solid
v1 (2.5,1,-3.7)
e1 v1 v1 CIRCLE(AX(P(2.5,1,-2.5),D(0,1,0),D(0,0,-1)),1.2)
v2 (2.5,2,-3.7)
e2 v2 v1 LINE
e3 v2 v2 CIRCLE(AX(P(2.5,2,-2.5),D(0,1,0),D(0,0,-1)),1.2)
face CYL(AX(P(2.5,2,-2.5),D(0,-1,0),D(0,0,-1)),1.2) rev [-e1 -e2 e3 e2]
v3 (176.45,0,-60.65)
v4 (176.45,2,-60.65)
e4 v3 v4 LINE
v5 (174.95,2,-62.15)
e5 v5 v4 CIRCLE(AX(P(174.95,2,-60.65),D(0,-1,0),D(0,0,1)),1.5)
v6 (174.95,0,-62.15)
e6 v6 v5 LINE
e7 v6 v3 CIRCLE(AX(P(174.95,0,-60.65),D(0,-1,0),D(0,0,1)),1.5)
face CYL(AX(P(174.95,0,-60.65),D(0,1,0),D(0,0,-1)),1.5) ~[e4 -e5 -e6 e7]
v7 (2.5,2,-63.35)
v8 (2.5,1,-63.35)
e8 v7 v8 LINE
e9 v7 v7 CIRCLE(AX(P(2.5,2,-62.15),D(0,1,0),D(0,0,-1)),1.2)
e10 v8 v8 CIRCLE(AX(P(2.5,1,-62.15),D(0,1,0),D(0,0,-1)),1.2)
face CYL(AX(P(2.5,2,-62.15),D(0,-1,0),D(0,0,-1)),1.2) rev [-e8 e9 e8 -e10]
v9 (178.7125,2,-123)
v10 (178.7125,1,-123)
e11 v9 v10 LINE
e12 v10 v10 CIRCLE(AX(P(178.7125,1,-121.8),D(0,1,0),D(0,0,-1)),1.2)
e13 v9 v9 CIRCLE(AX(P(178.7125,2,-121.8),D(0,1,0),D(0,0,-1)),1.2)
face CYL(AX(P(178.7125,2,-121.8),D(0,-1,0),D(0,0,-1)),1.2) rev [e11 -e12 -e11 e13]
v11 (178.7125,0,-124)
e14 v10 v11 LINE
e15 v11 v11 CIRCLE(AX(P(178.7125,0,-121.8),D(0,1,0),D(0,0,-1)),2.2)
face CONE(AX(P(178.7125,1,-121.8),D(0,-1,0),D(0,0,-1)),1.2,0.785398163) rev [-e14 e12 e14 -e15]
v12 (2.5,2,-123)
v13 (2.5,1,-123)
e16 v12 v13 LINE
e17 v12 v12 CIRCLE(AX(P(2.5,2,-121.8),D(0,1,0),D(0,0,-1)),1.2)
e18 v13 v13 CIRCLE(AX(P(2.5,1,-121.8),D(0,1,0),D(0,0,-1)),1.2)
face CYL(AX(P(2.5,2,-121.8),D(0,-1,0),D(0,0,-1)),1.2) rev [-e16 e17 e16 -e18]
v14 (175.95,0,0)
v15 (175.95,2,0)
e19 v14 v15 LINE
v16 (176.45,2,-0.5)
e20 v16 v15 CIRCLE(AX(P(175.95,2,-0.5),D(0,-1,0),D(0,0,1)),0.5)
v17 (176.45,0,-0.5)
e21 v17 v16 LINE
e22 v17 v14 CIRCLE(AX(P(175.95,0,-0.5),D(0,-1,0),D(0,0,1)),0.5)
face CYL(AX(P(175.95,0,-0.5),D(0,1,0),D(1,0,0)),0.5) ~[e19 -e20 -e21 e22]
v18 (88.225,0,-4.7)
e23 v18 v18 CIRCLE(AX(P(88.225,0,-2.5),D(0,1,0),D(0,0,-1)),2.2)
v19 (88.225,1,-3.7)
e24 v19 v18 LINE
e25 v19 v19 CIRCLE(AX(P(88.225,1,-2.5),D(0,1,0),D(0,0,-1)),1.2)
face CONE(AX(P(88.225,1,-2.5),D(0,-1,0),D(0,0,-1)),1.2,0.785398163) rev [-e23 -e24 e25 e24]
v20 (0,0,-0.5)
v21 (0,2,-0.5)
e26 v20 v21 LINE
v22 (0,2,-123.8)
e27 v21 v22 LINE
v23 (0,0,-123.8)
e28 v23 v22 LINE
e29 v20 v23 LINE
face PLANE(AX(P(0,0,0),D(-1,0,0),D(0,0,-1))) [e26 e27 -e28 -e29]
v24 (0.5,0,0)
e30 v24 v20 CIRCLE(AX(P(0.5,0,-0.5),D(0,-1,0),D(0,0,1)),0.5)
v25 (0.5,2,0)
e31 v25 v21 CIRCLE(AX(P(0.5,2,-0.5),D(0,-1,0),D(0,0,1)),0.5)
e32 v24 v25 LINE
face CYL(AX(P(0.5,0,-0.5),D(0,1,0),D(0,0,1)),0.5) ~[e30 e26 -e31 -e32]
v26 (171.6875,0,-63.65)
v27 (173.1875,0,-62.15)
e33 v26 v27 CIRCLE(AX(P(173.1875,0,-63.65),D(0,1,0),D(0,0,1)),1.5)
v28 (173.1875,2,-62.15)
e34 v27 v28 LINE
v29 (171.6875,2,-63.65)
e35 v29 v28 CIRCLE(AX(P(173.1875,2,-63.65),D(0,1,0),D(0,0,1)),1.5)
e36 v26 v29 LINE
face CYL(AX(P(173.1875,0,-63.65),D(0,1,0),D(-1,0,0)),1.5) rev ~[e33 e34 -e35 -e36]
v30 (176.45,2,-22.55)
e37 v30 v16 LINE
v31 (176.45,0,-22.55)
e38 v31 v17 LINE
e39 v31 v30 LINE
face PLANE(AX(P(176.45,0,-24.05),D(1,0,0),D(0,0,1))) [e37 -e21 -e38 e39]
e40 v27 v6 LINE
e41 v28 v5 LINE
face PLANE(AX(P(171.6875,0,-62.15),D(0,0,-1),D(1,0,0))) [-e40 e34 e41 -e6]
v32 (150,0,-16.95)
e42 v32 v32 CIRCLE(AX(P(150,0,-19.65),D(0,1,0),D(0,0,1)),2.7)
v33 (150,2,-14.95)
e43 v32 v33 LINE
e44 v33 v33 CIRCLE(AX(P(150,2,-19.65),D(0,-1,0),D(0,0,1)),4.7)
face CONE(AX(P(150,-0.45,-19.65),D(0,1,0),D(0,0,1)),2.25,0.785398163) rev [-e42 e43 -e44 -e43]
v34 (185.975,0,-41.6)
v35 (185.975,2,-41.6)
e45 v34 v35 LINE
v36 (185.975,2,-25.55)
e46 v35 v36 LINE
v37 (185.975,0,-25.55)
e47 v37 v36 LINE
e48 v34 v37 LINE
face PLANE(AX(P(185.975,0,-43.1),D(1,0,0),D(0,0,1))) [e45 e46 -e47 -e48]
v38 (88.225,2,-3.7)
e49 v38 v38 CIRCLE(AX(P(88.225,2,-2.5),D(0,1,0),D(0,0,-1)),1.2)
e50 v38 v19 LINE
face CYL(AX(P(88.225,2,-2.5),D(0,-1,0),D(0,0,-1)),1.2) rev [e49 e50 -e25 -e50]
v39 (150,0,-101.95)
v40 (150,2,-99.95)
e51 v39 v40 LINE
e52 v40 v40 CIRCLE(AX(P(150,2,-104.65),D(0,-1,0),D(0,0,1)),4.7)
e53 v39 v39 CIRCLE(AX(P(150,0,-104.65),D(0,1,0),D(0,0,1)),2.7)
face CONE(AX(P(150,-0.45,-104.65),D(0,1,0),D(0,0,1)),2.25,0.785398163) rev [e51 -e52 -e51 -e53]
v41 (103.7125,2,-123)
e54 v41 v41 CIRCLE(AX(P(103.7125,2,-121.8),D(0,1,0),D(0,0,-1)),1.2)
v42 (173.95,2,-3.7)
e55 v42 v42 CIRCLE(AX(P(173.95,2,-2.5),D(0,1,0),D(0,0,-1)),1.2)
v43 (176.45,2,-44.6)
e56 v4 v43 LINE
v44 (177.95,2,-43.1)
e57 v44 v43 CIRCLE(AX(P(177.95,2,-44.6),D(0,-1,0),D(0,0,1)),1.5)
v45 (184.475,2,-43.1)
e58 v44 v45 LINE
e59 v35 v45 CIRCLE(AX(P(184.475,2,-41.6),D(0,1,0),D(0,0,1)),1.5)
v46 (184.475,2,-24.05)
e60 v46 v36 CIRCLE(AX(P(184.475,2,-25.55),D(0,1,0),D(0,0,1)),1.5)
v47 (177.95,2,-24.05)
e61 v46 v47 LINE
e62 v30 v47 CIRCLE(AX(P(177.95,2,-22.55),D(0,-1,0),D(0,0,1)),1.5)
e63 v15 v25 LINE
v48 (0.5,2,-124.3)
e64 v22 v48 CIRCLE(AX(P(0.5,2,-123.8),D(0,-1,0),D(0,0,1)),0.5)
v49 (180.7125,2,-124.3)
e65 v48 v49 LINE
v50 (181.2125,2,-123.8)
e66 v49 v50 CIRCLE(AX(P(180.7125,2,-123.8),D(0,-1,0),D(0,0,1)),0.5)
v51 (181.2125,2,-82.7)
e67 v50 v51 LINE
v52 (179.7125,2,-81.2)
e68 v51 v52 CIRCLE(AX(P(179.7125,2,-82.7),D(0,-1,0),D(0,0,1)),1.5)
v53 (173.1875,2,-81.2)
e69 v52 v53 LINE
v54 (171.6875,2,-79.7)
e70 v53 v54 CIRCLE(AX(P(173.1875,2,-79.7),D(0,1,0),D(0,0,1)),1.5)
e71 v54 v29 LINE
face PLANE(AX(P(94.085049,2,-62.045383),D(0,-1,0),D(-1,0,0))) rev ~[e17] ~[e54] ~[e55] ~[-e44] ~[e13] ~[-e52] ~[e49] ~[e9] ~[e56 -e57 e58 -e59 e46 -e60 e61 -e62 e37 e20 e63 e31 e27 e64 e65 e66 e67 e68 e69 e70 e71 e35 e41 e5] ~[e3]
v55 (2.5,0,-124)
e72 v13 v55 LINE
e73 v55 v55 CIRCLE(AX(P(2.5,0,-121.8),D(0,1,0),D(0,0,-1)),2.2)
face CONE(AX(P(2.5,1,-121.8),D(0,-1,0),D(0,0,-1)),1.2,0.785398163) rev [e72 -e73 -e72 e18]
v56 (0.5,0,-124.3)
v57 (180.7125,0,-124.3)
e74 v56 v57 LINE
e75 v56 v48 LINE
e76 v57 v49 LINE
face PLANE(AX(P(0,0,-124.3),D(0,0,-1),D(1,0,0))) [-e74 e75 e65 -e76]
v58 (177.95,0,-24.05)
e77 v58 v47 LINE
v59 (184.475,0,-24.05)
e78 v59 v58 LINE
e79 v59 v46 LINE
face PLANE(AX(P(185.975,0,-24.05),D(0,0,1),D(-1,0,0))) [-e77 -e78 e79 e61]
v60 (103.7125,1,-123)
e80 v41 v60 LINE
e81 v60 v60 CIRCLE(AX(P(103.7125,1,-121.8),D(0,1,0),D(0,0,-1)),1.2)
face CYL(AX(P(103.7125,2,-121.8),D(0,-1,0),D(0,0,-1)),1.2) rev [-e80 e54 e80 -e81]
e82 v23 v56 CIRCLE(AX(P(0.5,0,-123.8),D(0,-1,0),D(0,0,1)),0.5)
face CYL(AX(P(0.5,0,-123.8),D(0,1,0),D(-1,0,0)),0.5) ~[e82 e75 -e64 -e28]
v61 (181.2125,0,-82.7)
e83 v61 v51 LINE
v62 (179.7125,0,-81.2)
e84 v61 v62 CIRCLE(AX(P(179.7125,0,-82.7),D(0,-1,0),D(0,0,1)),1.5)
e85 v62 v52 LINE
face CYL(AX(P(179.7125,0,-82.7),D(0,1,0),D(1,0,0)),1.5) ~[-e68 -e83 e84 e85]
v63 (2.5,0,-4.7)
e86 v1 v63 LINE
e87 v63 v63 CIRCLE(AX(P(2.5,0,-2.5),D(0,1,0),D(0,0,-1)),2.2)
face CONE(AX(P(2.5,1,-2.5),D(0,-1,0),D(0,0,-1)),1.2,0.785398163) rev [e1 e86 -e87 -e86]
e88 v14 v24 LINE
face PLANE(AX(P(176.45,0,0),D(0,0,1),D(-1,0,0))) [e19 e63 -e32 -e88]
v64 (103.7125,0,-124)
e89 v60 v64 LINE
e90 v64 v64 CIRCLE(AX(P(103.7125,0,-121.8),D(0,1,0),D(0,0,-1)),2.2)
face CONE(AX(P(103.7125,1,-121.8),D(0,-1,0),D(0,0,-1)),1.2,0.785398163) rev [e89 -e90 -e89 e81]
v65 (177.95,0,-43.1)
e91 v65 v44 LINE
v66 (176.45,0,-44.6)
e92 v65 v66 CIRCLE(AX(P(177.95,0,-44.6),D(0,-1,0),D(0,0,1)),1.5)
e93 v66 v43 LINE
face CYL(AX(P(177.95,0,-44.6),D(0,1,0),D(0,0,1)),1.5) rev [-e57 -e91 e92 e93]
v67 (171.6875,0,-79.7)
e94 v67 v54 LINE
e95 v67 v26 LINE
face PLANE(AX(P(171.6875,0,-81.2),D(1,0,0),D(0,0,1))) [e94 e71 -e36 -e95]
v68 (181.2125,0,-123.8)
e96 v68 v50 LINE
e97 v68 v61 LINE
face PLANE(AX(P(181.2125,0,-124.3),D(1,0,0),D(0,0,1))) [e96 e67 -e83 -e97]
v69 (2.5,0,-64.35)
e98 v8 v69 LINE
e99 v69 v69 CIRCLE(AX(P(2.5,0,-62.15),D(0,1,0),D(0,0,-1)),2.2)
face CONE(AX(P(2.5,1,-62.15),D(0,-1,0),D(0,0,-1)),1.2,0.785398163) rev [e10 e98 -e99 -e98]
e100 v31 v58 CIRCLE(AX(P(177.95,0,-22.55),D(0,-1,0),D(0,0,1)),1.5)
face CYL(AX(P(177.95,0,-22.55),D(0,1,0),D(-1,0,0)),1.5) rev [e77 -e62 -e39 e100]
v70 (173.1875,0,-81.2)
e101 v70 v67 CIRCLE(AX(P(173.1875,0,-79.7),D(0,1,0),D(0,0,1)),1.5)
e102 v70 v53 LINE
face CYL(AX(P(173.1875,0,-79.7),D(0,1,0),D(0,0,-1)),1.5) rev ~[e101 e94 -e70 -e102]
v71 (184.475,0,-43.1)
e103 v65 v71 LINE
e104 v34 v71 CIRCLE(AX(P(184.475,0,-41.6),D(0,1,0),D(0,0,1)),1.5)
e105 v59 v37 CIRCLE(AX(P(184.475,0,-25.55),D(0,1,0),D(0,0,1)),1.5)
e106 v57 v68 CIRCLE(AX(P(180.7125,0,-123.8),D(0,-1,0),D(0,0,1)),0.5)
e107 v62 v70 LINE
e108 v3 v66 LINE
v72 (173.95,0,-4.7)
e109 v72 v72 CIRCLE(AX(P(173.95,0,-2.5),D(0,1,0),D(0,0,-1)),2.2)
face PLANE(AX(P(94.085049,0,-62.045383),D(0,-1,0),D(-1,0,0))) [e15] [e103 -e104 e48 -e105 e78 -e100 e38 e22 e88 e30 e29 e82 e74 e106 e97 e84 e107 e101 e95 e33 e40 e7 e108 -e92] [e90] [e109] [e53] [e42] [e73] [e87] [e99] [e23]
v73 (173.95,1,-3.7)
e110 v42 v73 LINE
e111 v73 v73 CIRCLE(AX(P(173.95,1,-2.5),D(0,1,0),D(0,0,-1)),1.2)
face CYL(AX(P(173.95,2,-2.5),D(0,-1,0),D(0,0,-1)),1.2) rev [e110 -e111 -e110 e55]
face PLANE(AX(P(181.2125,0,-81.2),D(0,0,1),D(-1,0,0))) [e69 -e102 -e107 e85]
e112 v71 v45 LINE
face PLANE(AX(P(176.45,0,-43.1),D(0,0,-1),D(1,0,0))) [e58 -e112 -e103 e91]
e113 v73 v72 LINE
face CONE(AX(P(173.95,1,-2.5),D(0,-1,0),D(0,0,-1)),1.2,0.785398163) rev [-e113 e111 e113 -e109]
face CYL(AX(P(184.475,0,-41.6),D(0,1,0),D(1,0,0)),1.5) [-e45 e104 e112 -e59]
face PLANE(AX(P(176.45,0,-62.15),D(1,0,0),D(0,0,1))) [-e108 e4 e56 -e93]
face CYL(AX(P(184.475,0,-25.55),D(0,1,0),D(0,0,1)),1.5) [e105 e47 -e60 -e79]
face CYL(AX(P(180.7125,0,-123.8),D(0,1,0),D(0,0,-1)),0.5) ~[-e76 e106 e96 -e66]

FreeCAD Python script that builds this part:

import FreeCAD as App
import Part
import Sketcher

V = App.Vector
Q = App.Units.Quantity


def edges_at(feature, points):
    """Names of the edges that pass closest to the given points."""
    edges = feature.Shape.Edges
    near = lambda p: min(range(len(edges)), key=lambda i: edges[i].distToShape(Part.Vertex(*p))[0])
    return sorted({f"Edge{near(p) + 1}" for p in points})


def add_polygon(sketch, points):
    """Adds a closed chain of lines whose ends are joined by coincident constraints."""
    first, n = sketch.GeometryCount, len(points)
    for a, b in zip(points, points[1:] + points[:1]):
        sketch.addGeometry(Part.LineSegment(App.Vector(*a, 0), App.Vector(*b, 0)), False)
    for i in range(n):
        sketch.addConstraint(Sketcher.Constraint("Coincident", first + i, 2, first + (i + 1) % n, 1))

doc = App.newDocument("Part")
params = doc.addObject("Spreadsheet::Sheet", "Params")
for row, (alias, value) in enumerate([
    ("sketch1_height", "124.3 mm"),
    ("sketch1_height2", "43.1 mm"),
    ("sketch1_width", "176.45 mm"),
    ("sketch1_height3", "24.05 mm"),
    ("pad1_length", "2 mm"),
    ("sketch2_width", "2 mm"),
    ("sketch2_width2", "1 mm"),
    ("sketch2_height", "2.2 mm"),
    ("groove_angle", "360 deg"),
    ("linearpattern_pitch", "75 mm"),
    ("linearpattern2_pitch", "176.2125 mm"),
    ("linearpattern3_pitch", "186.034856 mm"),
    ("linearpattern4_pitch", "212.798814 mm"),
    ("linearpattern5_pitch", "149.734691 mm"),
    ("linearpattern6_pitch", "119.395023 mm"),
    ("sketch3_width", "2 mm"),
    ("sketch3_height", "4.7 mm"),
    ("sketch3_width2", "0.45 mm"),
    ("groove2_angle", "360 deg"),
    ("linearpattern7_pitch", "85 mm"),
    ("fillet_radius", "1.5 mm"),
    ("fillet2_radius", "0.5 mm"),
], start=1):
    params.set(f"A{row}", alias)
    params.set(f"B{row}", "=" + value)
    params.setAlias(f"B{row}", alias)

body = doc.addObject("PartDesign::Body", "Body")

# Sketch on XZ plane
sketch1 = doc.addObject("Sketcher::SketchObject", "Sketch")
body.addObject(sketch1)
sketch1.AttachmentSupport = (doc.XZ_Plane, [""])
sketch1.MapMode = "FlatFace"
add_polygon(sketch1, [(0, -124.3), (0, 0), (176.45, 0), (176.45, -24.05), (185.975, -24.05), (185.975, -43.1), (176.45, -43.1), (176.45, -62.15), (171.6875, -62.15), (171.6875, -81.2), (181.2125, -81.2), (181.2125, -124.3)])  # lines 0-11
sketch1.addConstraint([
    Sketcher.Constraint("Vertical", 0),
    Sketcher.Constraint("Horizontal", 1),
    Sketcher.Constraint("Vertical", 2),
    Sketcher.Constraint("Horizontal", 3),
    Sketcher.Constraint("Vertical", 4),
    Sketcher.Constraint("Horizontal", 5),
    Sketcher.Constraint("Vertical", 6),
    Sketcher.Constraint("Horizontal", 7),
    Sketcher.Constraint("Vertical", 8),
    Sketcher.Constraint("Horizontal", 9),
    Sketcher.Constraint("Vertical", 10),
    Sketcher.Constraint("Horizontal", 11),
    Sketcher.Constraint("Coincident", 0, 2, -1, 1),
    Sketcher.Constraint("Vertical", 2, 2, 5, 2),
    Sketcher.Constraint("Equal", 5, 9),
    Sketcher.Constraint("Equal", 4, 6),
    Sketcher.Constraint("Equal", 6, 8),
    Sketcher.Constraint("DistanceY", 0, 1, 0, 2, Q("124.3 mm")),
    Sketcher.Constraint("DistanceY", 10, 2, 10, 1, Q("43.1 mm")),
    Sketcher.Constraint("DistanceX", 1, 1, 1, 2, Q("176.45 mm")),
    Sketcher.Constraint("DistanceY", 2, 2, 2, 1, Q("24.05 mm")),
    Sketcher.Constraint("DistanceX", 3, 1, 3, 2, Q("9.525 mm")),
    Sketcher.Constraint("DistanceX", 7, 2, 7, 1, Q("4.7625 mm")),
])
sketch1.setExpression("Constraints[29]", "Params.sketch1_height")
sketch1.setExpression("Constraints[30]", "Params.sketch1_height2")
sketch1.setExpression("Constraints[31]", "Params.sketch1_width")
sketch1.setExpression("Constraints[32]", "Params.sketch1_height3")
pad1 = doc.addObject("PartDesign::Pad", "Pad")
body.addObject(pad1)
pad1.Profile = sketch1
pad1.setExpression("Length", "Params.pad1_length")
pad1.Reversed = True

# Sketch on YZ plane
sketch2 = doc.addObject("Sketcher::SketchObject", "Sketch001")
body.addObject(sketch2)
sketch2.AttachmentSupport = (doc.YZ_Plane, [""])
sketch2.MapMode = "FlatFace"
sketch2.AttachmentOffset = App.Placement(V(0, 0, 178.7125), App.Rotation())
add_polygon(sketch2, [(2, -121.8), (0, -121.8), (0, -124), (1, -123), (2, -123)])  # lines 0-4
sketch2.addGeometry(Part.LineSegment(V(0, -121.8, 0), V(2, -121.8, 0)), True)  # axis
sketch2.addConstraint([
    Sketcher.Constraint("Horizontal", 0),
    Sketcher.Constraint("Vertical", 1),
    Sketcher.Constraint("Horizontal", 3),
    Sketcher.Constraint("Vertical", 4),
    Sketcher.Constraint("Horizontal", 5),
    Sketcher.Constraint("Coincident", 5, 1, 0, 2),
    Sketcher.Constraint("PointOnObject", 0, 2, -2),
    Sketcher.Constraint("Vertical", 3, 2, 5, 2),
    Sketcher.Constraint("DistanceX", 0, 2, 0, 1, Q("2 mm")),
    Sketcher.Constraint("DistanceX", 3, 1, 3, 2, Q("1 mm")),
    Sketcher.Constraint("Angle", 2, Q("45 deg")),
    Sketcher.Constraint("DistanceY", 1, 2, 1, 1, Q("2.2 mm")),
    Sketcher.Constraint("DistanceY", 1, 2, -1, 1, Q("124 mm")),
])
sketch2.setExpression("Constraints[13]", "Params.sketch2_width")
sketch2.setExpression("Constraints[14]", "Params.sketch2_width2")
sketch2.setExpression("Constraints[16]", "Params.sketch2_height")
groove = doc.addObject("PartDesign::Groove", "Groove")
body.addObject(groove)
groove.Profile = sketch2
groove.ReferenceAxis = (sketch2, ["Axis0"])
groove.setExpression("Angle", "Params.groove_angle")
doc.recompute()

linearpattern = doc.addObject("PartDesign::LinearPattern", "LinearPattern")
body.addObject(linearpattern)
linearpattern.Originals = [groove]
linearpattern.Direction = (doc.X_Axis, [""])
linearpattern.Mode = "offset"
linearpattern.setExpression("Offset", "Params.linearpattern_pitch")
linearpattern.Occurrences = 2
linearpattern.Reversed = True
body.Tip = linearpattern
doc.recompute()

linearpattern2 = doc.addObject("PartDesign::LinearPattern", "LinearPattern001")
body.addObject(linearpattern2)
linearpattern2.Originals = [groove]
linearpattern2.Direction = (doc.X_Axis, [""])
linearpattern2.Mode = "offset"
linearpattern2.setExpression("Offset", "Params.linearpattern2_pitch")
linearpattern2.Occurrences = 2
linearpattern2.Reversed = True
body.Tip = linearpattern2
doc.recompute()

datumline = doc.addObject("PartDesign::Line", "DatumLine")
body.addObject(datumline)
datumline.Placement = App.Placement(V(0, 0, 0), App.Rotation(V(0, 0, 1), V(-0.947201529, 0, 0.320638838)))
linearpattern3 = doc.addObject("PartDesign::LinearPattern", "LinearPattern002")
body.addObject(linearpattern3)
linearpattern3.Originals = [groove]
linearpattern3.Direction = (datumline, [""])
linearpattern3.Mode = "offset"
linearpattern3.setExpression("Offset", "Params.linearpattern3_pitch")
linearpattern3.Occurrences = 2
body.Tip = linearpattern3
doc.recompute()

datumline2 = doc.addObject("PartDesign::Line", "DatumLine001")
body.addObject(datumline2)
datumline2.Placement = App.Placement(V(0, 0, 0), App.Rotation(V(0, 0, 1), V(-0.828070875, 0, 0.560623426)))
linearpattern4 = doc.addObject("PartDesign::LinearPattern", "LinearPattern003")
body.addObject(linearpattern4)
linearpattern4.Originals = [groove]
linearpattern4.Direction = (datumline2, [""])
linearpattern4.Mode = "offset"
linearpattern4.setExpression("Offset", "Params.linearpattern4_pitch")
linearpattern4.Occurrences = 2
body.Tip = linearpattern4
doc.recompute()

datumline3 = doc.addObject("PartDesign::Line", "DatumLine002")
body.addObject(datumline3)
datumline3.Placement = App.Placement(V(0, 0, 0), App.Rotation(V(0, 0, 1), V(-0.604318875, 0, 0.796742554)))
linearpattern5 = doc.addObject("PartDesign::LinearPattern", "LinearPattern004")
body.addObject(linearpattern5)
linearpattern5.Originals = [groove]
linearpattern5.Direction = (datumline3, [""])
linearpattern5.Mode = "offset"
linearpattern5.setExpression("Offset", "Params.linearpattern5_pitch")
linearpattern5.Occurrences = 2
body.Tip = linearpattern5
doc.recompute()

datumline4 = doc.addObject("PartDesign::Line", "DatumLine003")
body.addObject(datumline4)
datumline4.Placement = App.Placement(V(0, 0, 0), App.Rotation(V(0, 0, 1), V(-0.039888598, 0, 0.999204133)))
linearpattern6 = doc.addObject("PartDesign::LinearPattern", "LinearPattern005")
body.addObject(linearpattern6)
linearpattern6.Originals = [groove]
linearpattern6.Direction = (datumline4, [""])
linearpattern6.Mode = "offset"
linearpattern6.setExpression("Offset", "Params.linearpattern6_pitch")
linearpattern6.Occurrences = 2
body.Tip = linearpattern6

# Sketch on YZ plane
sketch3 = doc.addObject("Sketcher::SketchObject", "Sketch002")
body.addObject(sketch3)
sketch3.AttachmentSupport = (doc.YZ_Plane, [""])
sketch3.MapMode = "FlatFace"
sketch3.AttachmentOffset = App.Placement(V(0, 0, 150), App.Rotation())
add_polygon(sketch3, [(0, -104.65), (2, -104.65), (2, -99.95), (-0.45, -102.4), (0, -102.4)])  # lines 0-4
sketch3.addGeometry(Part.LineSegment(V(2, -104.65, 0), V(-0.45, -104.65, 0)), True)  # axis
sketch3.addConstraint([
    Sketcher.Constraint("Horizontal", 0),
    Sketcher.Constraint("Vertical", 1),
    Sketcher.Constraint("Horizontal", 3),
    Sketcher.Constraint("Vertical", 4),
    Sketcher.Constraint("Horizontal", 5),
    Sketcher.Constraint("Coincident", 5, 1, 0, 2),
    Sketcher.Constraint("PointOnObject", 3, 2, -2),
    Sketcher.Constraint("Vertical", 2, 2, 5, 2),
    Sketcher.Constraint("DistanceX", 0, 1, 0, 2, Q("2 mm")),
    Sketcher.Constraint("Angle", 2, Q("-135 deg")),
    Sketcher.Constraint("DistanceY", 1, 1, 1, 2, Q("4.7 mm")),
    Sketcher.Constraint("DistanceX", 3, 1, 3, 2, Q("0.45 mm")),
    Sketcher.Constraint("DistanceY", 2, 2, -1, 1, Q("102.4 mm")),
])
sketch3.setExpression("Constraints[13]", "Params.sketch3_width")
sketch3.setExpression("Constraints[15]", "Params.sketch3_height")
sketch3.setExpression("Constraints[16]", "Params.sketch3_width2")
groove2 = doc.addObject("PartDesign::Groove", "Groove001")
body.addObject(groove2)
groove2.Profile = sketch3
groove2.ReferenceAxis = (sketch3, ["Axis0"])
groove2.setExpression("Angle", "Params.groove2_angle")
doc.recompute()

linearpattern7 = doc.addObject("PartDesign::LinearPattern", "LinearPattern006")
body.addObject(linearpattern7)
linearpattern7.Originals = [groove2]
linearpattern7.Direction = (doc.Z_Axis, [""])
linearpattern7.Mode = "offset"
linearpattern7.setExpression("Offset", "Params.linearpattern7_pitch")
linearpattern7.Occurrences = 2
body.Tip = linearpattern7
doc.recompute()

fillet = doc.addObject("PartDesign::Fillet", "Fillet")
body.addObject(fillet)
fillet.Base = (linearpattern7, edges_at(linearpattern7, [
    (181.213, 1, -81.2),
    (171.688, 1, -81.2),
    (171.688, 1, -62.15),
    (176.45, 1, -62.15),
    (176.45, 1, -43.1),
    (185.975, 1, -43.1),
    (185.975, 1, -24.05),
    (176.45, 1, -24.05),
]))
fillet.setExpression("Radius", "Params.fillet_radius")
doc.recompute()

fillet2 = doc.addObject("PartDesign::Fillet", "Fillet001")
body.addObject(fillet2)
fillet2.Base = (fillet, edges_at(fillet, [
    (0, 1, 0),
    (0, 1, -124.3),
    (181.213, 1, -124.3),
    (176.45, 1, 0),
]))
fillet2.setExpression("Radius", "Params.fillet2_radius")

doc.recompute()
